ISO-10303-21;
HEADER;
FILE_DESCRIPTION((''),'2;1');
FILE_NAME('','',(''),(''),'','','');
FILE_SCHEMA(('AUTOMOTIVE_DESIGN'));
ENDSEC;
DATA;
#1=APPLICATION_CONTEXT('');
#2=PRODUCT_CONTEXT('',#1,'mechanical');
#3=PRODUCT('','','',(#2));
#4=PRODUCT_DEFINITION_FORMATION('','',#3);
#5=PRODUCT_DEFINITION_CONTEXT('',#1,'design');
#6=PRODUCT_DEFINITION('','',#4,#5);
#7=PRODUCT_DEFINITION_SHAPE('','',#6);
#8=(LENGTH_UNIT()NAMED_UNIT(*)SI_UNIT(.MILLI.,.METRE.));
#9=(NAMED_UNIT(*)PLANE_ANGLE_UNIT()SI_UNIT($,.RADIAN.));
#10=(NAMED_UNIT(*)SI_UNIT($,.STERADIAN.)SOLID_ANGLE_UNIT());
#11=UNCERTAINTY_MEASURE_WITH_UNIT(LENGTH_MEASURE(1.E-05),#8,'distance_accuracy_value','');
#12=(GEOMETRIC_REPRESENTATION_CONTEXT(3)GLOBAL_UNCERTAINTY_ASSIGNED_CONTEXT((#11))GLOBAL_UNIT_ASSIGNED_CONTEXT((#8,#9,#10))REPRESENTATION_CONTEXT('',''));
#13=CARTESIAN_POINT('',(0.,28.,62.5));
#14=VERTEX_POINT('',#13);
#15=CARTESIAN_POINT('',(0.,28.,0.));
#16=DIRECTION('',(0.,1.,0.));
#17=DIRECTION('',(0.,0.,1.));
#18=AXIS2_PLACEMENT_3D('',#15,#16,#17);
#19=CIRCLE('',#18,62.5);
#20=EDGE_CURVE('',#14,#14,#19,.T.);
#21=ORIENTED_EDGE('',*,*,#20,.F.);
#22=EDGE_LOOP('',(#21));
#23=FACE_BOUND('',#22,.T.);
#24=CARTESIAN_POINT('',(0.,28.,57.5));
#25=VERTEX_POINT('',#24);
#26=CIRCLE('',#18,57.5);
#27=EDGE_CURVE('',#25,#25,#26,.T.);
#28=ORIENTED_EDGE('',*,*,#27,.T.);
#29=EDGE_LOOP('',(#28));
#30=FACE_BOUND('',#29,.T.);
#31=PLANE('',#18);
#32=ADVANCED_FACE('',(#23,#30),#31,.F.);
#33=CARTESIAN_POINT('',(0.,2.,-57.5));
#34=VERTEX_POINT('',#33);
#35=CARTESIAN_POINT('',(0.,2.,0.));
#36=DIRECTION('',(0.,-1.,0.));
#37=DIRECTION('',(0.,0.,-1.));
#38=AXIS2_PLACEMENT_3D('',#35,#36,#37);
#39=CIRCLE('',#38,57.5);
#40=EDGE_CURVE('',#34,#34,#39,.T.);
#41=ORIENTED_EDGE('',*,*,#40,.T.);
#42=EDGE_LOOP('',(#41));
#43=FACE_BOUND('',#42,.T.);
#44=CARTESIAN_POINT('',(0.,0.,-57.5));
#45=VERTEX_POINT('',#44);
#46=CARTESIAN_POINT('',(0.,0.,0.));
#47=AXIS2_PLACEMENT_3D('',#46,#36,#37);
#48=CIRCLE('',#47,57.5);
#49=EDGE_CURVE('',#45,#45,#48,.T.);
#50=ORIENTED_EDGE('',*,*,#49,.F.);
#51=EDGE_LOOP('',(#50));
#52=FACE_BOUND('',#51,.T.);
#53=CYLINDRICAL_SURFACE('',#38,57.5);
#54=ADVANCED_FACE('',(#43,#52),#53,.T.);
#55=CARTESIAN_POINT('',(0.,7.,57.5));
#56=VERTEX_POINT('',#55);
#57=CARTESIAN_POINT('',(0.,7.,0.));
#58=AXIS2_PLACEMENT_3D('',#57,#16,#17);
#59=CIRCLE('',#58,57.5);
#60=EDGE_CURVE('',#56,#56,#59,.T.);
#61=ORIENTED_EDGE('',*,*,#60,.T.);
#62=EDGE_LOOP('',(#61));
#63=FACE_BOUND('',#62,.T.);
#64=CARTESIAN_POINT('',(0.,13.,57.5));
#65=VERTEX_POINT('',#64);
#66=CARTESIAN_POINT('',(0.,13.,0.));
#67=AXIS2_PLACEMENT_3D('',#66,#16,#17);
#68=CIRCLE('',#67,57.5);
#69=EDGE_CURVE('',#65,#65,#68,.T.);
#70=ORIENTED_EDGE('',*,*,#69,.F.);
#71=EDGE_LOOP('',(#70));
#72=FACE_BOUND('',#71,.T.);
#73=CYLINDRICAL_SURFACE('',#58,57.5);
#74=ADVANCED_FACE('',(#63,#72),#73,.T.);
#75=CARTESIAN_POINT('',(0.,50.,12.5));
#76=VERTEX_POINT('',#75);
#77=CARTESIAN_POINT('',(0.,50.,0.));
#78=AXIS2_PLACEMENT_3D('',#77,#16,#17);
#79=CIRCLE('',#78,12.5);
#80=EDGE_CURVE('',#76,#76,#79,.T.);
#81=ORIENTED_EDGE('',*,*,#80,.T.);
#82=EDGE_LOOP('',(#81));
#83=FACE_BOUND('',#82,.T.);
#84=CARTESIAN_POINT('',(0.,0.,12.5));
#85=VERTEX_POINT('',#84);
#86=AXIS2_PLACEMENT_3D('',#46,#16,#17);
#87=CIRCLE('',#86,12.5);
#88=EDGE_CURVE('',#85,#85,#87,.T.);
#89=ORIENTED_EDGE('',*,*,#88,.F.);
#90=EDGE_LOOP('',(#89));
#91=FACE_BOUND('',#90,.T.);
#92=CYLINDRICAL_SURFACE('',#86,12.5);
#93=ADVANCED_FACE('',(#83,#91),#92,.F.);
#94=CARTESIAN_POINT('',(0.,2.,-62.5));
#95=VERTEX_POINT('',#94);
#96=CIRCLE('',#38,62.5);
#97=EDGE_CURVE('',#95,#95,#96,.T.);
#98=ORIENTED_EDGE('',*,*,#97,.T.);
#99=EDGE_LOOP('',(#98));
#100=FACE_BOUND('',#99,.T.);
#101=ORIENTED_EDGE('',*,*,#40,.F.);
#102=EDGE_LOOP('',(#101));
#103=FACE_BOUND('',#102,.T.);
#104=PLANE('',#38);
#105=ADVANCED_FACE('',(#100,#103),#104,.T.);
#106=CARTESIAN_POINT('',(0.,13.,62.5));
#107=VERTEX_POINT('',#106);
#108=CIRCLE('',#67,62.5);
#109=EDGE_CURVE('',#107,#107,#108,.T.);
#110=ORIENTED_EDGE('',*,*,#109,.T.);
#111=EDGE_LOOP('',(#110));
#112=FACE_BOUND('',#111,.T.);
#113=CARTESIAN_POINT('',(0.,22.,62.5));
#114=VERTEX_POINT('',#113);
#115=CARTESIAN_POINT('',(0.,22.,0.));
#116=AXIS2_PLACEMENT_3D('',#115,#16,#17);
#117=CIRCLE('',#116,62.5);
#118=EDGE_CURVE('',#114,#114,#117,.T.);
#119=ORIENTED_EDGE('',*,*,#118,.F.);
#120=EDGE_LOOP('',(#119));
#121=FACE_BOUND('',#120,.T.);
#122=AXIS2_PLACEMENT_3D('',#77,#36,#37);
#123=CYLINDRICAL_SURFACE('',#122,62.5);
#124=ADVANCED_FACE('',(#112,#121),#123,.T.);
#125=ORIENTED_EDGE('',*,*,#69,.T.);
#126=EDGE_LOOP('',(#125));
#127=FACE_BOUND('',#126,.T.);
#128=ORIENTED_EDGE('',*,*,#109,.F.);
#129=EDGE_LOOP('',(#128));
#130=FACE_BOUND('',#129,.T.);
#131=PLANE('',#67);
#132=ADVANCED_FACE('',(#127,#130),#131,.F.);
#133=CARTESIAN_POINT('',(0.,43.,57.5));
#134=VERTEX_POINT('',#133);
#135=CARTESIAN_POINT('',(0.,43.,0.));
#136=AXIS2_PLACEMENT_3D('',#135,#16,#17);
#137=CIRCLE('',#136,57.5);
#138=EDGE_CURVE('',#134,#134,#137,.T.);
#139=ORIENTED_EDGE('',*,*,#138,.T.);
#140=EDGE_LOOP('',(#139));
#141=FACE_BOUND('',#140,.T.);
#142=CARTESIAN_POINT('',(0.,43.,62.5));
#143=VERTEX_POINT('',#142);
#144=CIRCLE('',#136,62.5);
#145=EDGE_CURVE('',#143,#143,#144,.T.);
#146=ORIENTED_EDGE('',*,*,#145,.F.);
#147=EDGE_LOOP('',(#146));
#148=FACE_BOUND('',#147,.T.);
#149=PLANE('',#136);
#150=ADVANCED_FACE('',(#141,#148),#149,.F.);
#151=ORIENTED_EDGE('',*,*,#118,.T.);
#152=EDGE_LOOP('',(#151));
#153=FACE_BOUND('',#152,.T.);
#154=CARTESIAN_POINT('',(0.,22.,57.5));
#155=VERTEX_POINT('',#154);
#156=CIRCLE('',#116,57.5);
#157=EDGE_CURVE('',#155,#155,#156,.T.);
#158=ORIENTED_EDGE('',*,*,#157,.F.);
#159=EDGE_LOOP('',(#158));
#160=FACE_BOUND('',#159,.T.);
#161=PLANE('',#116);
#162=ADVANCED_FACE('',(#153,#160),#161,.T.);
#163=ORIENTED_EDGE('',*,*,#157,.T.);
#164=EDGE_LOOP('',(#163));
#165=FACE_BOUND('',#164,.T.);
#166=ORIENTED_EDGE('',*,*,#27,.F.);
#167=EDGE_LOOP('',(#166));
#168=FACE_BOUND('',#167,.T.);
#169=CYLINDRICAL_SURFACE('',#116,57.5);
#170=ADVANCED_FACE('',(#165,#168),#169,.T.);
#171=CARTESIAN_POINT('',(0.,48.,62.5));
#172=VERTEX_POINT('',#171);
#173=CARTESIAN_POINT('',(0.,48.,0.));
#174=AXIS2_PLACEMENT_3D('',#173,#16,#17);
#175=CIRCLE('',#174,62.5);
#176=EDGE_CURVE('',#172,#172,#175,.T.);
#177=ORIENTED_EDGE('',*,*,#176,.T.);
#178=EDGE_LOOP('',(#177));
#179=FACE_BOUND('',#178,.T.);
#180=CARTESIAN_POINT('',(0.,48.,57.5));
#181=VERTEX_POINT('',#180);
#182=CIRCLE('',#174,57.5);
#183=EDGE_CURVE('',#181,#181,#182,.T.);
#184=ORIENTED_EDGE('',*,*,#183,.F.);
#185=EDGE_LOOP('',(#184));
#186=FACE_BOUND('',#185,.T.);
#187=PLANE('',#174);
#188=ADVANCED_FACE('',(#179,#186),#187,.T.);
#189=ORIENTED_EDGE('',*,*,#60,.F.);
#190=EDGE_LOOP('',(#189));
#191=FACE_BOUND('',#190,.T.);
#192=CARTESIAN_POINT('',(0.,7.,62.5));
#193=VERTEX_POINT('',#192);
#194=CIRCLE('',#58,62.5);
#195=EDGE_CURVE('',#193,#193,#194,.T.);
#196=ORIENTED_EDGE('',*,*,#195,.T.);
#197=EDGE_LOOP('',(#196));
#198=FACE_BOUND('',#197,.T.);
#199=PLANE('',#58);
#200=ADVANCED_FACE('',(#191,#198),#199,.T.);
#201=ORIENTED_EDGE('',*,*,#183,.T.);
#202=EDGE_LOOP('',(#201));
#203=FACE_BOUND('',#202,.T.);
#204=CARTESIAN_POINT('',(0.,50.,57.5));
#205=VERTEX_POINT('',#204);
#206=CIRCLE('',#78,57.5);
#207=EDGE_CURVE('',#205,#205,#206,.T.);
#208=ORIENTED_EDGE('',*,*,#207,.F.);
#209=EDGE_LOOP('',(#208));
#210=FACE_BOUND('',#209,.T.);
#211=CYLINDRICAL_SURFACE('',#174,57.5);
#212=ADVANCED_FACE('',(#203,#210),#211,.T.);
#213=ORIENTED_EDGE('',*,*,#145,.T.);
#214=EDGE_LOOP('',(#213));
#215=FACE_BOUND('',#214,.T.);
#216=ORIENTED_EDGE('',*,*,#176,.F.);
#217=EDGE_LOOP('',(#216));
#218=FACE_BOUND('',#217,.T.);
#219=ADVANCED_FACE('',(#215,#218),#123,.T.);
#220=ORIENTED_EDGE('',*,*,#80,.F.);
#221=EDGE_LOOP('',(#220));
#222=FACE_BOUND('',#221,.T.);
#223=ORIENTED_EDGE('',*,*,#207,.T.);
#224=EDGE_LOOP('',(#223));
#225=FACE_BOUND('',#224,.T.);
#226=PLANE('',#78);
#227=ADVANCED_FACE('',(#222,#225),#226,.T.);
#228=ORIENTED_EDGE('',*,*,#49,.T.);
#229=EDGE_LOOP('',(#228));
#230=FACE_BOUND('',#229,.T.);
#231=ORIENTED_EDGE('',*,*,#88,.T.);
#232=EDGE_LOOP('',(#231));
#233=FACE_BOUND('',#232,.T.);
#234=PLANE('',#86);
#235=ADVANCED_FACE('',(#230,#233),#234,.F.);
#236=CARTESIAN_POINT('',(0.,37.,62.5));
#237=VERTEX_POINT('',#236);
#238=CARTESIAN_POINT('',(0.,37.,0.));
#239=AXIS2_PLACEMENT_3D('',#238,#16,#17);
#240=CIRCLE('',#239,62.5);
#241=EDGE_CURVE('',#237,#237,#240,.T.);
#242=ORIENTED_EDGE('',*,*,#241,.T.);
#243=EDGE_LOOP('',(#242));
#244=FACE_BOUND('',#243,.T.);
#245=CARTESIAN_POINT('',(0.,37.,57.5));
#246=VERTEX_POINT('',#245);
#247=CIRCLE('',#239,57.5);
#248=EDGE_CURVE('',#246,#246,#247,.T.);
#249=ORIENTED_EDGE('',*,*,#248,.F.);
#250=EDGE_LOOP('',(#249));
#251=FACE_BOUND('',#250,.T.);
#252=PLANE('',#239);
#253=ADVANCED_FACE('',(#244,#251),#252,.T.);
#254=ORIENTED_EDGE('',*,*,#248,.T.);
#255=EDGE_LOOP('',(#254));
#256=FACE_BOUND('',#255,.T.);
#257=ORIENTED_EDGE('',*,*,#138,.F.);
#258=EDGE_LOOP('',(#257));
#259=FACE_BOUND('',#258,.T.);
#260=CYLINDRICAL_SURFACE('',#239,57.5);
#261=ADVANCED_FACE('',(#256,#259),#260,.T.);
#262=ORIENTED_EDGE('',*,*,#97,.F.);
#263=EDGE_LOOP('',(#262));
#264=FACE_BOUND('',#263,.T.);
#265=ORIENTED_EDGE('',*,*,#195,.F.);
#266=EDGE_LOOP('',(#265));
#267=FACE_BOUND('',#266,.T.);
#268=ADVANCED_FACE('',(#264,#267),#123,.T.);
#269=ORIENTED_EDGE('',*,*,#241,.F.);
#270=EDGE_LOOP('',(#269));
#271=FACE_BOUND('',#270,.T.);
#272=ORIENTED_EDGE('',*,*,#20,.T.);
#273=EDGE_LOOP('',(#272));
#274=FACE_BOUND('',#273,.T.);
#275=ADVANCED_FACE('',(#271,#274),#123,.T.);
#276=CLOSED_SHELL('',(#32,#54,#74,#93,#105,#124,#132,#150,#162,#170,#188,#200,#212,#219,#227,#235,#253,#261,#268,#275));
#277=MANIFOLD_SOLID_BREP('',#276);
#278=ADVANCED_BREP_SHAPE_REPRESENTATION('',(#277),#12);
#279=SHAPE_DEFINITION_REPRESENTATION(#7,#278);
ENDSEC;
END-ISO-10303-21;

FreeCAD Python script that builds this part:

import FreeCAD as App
import Part
import Sketcher

V = App.Vector

doc = App.newDocument("Part")
body = doc.addObject("PartDesign::Body", "Body")

sketch1 = body.newObject("Sketcher::SketchObject", "Sketch")
sketch1.AttachmentSupport = (doc.getObject("XZ_Plane"), [""])
sketch1.MapMode = "FlatFace"
sketch1.addGeometry(Part.Circle(V(0, 0, 0), V(0, 0, 1), 62), False)
sketch1.addConstraint(Sketcher.Constraint("Coincident", 0, 3, -1, 1))
sketch1.addConstraint(Sketcher.Constraint("Diameter", 0, 125.0))
pad1 = body.newObject("PartDesign::Pad", "Pad")
pad1.Profile = sketch1
pad1.Length = 50
pad1.Reversed = True

sketch2 = body.newObject("Sketcher::SketchObject", "Sketch001")
sketch2.AttachmentSupport = (doc.getObject("XZ_Plane"), [""])
sketch2.MapMode = "FlatFace"
sketch2.AttachmentOffset = App.Placement(V(0, 0, -43), App.Rotation())
sketch2.addGeometry(Part.Circle(V(0, 0, 0), V(0, 0, 1), 62), False)
sketch2.addGeometry(Part.Circle(V(0, 0, 0), V(0, 0, 1), 58), False)
sketch2.addConstraint(Sketcher.Constraint("Coincident", 0, 3, -1, 1))
sketch2.addConstraint(Sketcher.Constraint("Coincident", 1, 3, -1, 1))
sketch2.addConstraint(Sketcher.Constraint("Diameter", 0, 125.0))
sketch2.addConstraint(Sketcher.Constraint("Diameter", 1, 115.0))
pocket1 = body.newObject("PartDesign::Pocket", "Pocket")
pocket1.Profile = sketch2
pocket1.Length = 6
pocket1.Reversed = True
doc.recompute()

linearpattern = body.newObject("PartDesign::LinearPattern", "LinearPattern")
linearpattern.Originals = [pocket1]
linearpattern.Direction = (doc.getObject("Y_Axis"), [""])
linearpattern.Mode = "offset"
linearpattern.Offset = 15
linearpattern.Occurrences = 3
linearpattern.Reversed = True
body.Tip = linearpattern

sketch3 = body.newObject("Sketcher::SketchObject", "Sketch002")
sketch3.AttachmentSupport = (doc.getObject("XZ_Plane"), [""])
sketch3.MapMode = "FlatFace"
sketch3.AttachmentOffset = App.Placement(V(0, 0, -50), App.Rotation())
sketch3.addGeometry(Part.Circle(V(0, 0, 0), V(0, 0, 1), 62), False)
sketch3.addGeometry(Part.Circle(V(0, 0, 0), V(0, 0, 1), 58), False)
sketch3.addConstraint(Sketcher.Constraint("Coincident", 0, 3, -1, 1))
sketch3.addConstraint(Sketcher.Constraint("Coincident", 1, 3, -1, 1))
sketch3.addConstraint(Sketcher.Constraint("Diameter", 0, 125.0))
sketch3.addConstraint(Sketcher.Constraint("Diameter", 1, 115.0))
pocket2 = body.newObject("PartDesign::Pocket", "Pocket001")
pocket2.Profile = sketch3
pocket2.Length = 2
pocket2.Reversed = True

sketch4 = body.newObject("Sketcher::SketchObject", "Sketch003")
sketch4.AttachmentSupport = (doc.getObject("XZ_Plane"), [""])
sketch4.MapMode = "FlatFace"
sketch4.addGeometry(Part.Circle(V(0, 0, 0), V(0, 0, 1), 62), False)
sketch4.addGeometry(Part.Circle(V(0, 0, 0), V(0, 0, 1), 58), False)
sketch4.addConstraint(Sketcher.Constraint("Coincident", 0, 3, -1, 1))
sketch4.addConstraint(Sketcher.Constraint("Coincident", 1, 3, -1, 1))
sketch4.addConstraint(Sketcher.Constraint("Diameter", 0, 125.0))
sketch4.addConstraint(Sketcher.Constraint("Diameter", 1, 115.0))
pocket3 = body.newObject("PartDesign::Pocket", "Pocket002")
pocket3.Profile = sketch4
pocket3.Length = 2

sketch5 = body.newObject("Sketcher::SketchObject", "Sketch004")
sketch5.AttachmentSupport = (doc.getObject("XZ_Plane"), [""])
sketch5.MapMode = "FlatFace"
sketch5.AttachmentOffset = App.Placement(V(0, 0, -50), App.Rotation())
sketch5.addGeometry(Part.Circle(V(0, 0, 0), V(0, 0, 1), 12), False)
sketch5.addConstraint(Sketcher.Constraint("Coincident", 0, 3, -1, 1))
sketch5.addConstraint(Sketcher.Constraint("Diameter", 0, 25.0))
pocket4 = body.newObject("PartDesign::Pocket", "Pocket003")
pocket4.Profile = sketch5
pocket4.Type = "ThroughAll"
pocket4.Reversed = True

doc.recompute()
